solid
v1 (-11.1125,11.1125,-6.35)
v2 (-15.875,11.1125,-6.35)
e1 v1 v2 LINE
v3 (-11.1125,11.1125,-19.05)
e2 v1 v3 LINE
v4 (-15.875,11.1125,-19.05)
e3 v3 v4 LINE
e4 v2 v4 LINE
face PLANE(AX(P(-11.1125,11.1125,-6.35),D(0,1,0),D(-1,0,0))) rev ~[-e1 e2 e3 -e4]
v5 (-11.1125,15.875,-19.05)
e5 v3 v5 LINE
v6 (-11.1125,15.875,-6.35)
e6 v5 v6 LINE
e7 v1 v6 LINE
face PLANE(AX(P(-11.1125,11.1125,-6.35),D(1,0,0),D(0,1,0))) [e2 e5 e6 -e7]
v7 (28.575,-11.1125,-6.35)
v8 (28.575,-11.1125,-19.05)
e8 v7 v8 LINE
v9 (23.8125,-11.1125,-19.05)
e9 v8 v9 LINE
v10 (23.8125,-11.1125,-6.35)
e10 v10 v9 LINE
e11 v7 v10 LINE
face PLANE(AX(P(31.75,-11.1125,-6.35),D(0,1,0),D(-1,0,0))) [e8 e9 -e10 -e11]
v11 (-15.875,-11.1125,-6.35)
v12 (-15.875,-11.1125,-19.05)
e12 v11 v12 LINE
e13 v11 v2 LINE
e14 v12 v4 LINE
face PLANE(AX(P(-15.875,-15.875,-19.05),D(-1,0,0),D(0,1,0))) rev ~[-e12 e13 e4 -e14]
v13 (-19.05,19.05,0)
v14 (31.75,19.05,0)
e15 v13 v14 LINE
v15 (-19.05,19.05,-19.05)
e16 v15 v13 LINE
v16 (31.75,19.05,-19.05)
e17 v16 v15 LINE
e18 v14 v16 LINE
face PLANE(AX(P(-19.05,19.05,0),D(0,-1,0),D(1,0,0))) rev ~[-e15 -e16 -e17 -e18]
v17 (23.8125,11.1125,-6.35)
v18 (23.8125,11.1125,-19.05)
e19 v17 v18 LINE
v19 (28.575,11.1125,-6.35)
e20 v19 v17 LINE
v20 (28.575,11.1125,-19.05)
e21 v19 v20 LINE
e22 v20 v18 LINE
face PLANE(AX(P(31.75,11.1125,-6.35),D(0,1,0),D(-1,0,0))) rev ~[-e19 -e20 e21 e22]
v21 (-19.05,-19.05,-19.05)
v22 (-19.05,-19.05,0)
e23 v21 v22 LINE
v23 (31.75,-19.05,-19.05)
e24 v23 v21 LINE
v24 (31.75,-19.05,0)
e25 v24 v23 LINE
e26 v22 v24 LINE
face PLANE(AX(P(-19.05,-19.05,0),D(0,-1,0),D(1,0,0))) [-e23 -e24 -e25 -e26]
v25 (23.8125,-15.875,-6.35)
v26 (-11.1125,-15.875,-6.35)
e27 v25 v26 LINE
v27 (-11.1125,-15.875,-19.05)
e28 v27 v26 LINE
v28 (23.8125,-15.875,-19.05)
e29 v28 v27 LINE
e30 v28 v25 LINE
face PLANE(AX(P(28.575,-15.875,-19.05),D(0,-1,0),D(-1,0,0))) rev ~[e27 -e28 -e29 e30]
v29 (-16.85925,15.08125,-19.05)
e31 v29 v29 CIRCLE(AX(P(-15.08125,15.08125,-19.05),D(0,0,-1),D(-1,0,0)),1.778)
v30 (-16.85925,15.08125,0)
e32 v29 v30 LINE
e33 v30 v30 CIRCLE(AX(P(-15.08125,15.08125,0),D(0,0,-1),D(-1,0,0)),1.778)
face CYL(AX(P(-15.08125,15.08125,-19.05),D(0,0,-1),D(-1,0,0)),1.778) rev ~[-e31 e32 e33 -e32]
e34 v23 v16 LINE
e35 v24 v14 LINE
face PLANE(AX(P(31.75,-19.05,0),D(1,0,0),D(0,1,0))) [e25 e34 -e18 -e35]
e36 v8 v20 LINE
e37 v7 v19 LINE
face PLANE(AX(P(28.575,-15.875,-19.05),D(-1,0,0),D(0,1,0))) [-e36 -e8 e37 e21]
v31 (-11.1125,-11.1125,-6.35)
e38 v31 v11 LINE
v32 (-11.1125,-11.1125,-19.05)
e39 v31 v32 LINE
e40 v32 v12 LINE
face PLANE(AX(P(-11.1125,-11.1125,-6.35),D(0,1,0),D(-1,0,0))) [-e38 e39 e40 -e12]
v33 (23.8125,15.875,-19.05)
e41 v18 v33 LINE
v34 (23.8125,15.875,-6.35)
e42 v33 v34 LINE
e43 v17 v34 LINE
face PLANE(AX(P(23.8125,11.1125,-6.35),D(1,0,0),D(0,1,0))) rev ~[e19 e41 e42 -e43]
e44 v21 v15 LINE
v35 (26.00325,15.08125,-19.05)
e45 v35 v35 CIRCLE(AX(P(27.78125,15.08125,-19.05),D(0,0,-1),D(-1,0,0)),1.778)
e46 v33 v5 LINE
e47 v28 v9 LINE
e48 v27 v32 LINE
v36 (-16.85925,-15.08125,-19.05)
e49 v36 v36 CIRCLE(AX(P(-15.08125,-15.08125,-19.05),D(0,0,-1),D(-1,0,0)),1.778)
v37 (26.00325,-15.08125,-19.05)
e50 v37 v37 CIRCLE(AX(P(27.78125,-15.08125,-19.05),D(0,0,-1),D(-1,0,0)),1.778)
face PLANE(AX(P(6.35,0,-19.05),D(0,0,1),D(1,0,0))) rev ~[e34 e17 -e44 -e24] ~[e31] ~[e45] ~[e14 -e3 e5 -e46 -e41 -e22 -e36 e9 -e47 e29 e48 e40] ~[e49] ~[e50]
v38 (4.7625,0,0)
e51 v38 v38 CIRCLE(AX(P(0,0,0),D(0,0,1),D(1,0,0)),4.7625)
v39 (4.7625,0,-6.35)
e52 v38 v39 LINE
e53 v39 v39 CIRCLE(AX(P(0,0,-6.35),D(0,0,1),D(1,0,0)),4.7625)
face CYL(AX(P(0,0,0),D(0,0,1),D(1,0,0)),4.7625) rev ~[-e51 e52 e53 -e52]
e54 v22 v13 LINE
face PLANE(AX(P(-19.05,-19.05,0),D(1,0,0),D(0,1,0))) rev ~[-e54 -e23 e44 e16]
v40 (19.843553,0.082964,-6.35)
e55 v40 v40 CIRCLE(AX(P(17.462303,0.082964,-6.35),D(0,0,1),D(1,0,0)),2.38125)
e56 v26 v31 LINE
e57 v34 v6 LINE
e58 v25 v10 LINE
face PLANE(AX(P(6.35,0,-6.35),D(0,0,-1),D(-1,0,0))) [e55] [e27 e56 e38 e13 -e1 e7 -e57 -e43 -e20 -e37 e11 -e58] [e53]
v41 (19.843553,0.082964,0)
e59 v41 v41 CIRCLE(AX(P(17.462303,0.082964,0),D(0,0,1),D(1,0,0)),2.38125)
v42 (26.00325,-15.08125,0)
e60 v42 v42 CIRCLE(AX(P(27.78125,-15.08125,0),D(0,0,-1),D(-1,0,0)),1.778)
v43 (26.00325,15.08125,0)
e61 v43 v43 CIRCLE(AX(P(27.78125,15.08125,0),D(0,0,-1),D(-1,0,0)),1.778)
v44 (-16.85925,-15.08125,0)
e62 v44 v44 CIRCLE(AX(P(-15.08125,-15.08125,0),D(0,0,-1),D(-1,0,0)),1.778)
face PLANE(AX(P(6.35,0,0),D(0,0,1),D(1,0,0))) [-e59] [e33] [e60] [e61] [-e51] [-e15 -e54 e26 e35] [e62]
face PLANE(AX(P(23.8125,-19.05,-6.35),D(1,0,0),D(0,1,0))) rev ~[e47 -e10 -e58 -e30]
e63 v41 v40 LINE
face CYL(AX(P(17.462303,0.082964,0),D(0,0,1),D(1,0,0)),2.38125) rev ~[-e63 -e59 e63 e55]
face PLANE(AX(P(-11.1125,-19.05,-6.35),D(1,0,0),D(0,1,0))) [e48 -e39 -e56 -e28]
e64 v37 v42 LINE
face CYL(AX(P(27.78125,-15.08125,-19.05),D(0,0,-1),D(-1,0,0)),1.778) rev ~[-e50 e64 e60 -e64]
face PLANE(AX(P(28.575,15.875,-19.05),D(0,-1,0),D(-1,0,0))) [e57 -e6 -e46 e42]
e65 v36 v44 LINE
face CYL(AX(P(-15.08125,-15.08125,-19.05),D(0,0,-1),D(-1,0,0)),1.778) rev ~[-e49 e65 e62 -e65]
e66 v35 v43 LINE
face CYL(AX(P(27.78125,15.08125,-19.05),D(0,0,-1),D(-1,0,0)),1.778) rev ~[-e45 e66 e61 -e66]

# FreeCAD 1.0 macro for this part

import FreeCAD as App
import Part
import Sketcher
from FreeCAD import Vector
Q = App.Units.Quantity

doc = App.newDocument("Part")
body = doc.addObject("PartDesign::Body", "Body")

# Sketch on XY plane
sketch1 = body.newObject("Sketcher::SketchObject", "Sketch")
sketch1.AttachmentSupport = (doc.getObject("XY_Plane"), [""])
sketch1.MapMode = "FlatFace"
sketch1.addGeometry(Part.LineSegment(Vector(-19.05, 19.05, 0), Vector(-19.05, -19.05, 0)), False)
sketch1.addGeometry(Part.LineSegment(Vector(-19.05, -19.05, 0), Vector(31.75, -19.05, 0)), False)
sketch1.addGeometry(Part.LineSegment(Vector(31.75, -19.05, 0), Vector(31.75, 19.05, 0)), False)
sketch1.addGeometry(Part.LineSegment(Vector(31.75, 19.05, 0), Vector(-19.05, 19.05, 0)), False)
sketch1.addConstraint(Sketcher.Constraint("Coincident", 0, 2, 1, 1))
sketch1.addConstraint(Sketcher.Constraint("Coincident", 1, 2, 2, 1))
sketch1.addConstraint(Sketcher.Constraint("Coincident", 2, 2, 3, 1))
sketch1.addConstraint(Sketcher.Constraint("Coincident", 3, 2, 0, 1))
sketch1.addConstraint(Sketcher.Constraint("Vertical", 0))
sketch1.addConstraint(Sketcher.Constraint("Horizontal", 1))
sketch1.addConstraint(Sketcher.Constraint("Vertical", 2))
sketch1.addConstraint(Sketcher.Constraint("Horizontal", 3))
sketch1.addConstraint(Sketcher.Constraint("DistanceX", 1, 1, 1, 2, Q("2 in")))
sketch1.addConstraint(Sketcher.Constraint("DistanceY", 0, 2, 0, 1, Q("1.5 in")))
sketch1.addConstraint(Sketcher.Constraint("DistanceX", 0, 2, -1, 1, Q("0.75 in")))
sketch1.addConstraint(Sketcher.Constraint("DistanceY", 0, 2, -1, 1, Q("0.75 in")))
pad1 = body.newObject("PartDesign::Pad", "Pad")
pad1.Profile = sketch1
pad1.Length = Q("0.75 in")
pad1.Reversed = True

# Sketch on XY plane
sketch2 = body.newObject("Sketcher::SketchObject", "Sketch001")
sketch2.AttachmentSupport = (doc.getObject("XY_Plane"), [""])
sketch2.MapMode = "FlatFace"
sketch2.AttachmentOffset = App.Placement(Vector(0, 0, -0.75 * 25.4), App.Rotation())
sketch2.addGeometry(Part.LineSegment(Vector(28.575, 15.875, 0), Vector(28.575, -15.875, 0)), False)
sketch2.addGeometry(Part.LineSegment(Vector(28.575, -15.875, 0), Vector(-15.875, -15.875, 0)), False)
sketch2.addGeometry(Part.LineSegment(Vector(-15.875, -15.875, 0), Vector(-15.875, 15.875, 0)), False)
sketch2.addGeometry(Part.LineSegment(Vector(-15.875, 15.875, 0), Vector(28.575, 15.875, 0)), False)
sketch2.addConstraint(Sketcher.Constraint("Coincident", 0, 2, 1, 1))
sketch2.addConstraint(Sketcher.Constraint("Coincident", 1, 2, 2, 1))
sketch2.addConstraint(Sketcher.Constraint("Coincident", 2, 2, 3, 1))
sketch2.addConstraint(Sketcher.Constraint("Coincident", 3, 2, 0, 1))
sketch2.addConstraint(Sketcher.Constraint("Vertical", 0))
sketch2.addConstraint(Sketcher.Constraint("Horizontal", 1))
sketch2.addConstraint(Sketcher.Constraint("Vertical", 2))
sketch2.addConstraint(Sketcher.Constraint("Horizontal", 3))
sketch2.addConstraint(Sketcher.Constraint("DistanceX", 1, 2, 1, 1, Q("1.75 in")))
sketch2.addConstraint(Sketcher.Constraint("DistanceY", 0, 2, 0, 1, Q("1.25 in")))
sketch2.addConstraint(Sketcher.Constraint("DistanceX", -1, 1, 0, 2, Q("1.125 in")))
sketch2.addConstraint(Sketcher.Constraint("DistanceY", 0, 2, -1, 1, Q("0.625 in")))
pocket1 = body.newObject("PartDesign::Pocket", "Pocket")
pocket1.Profile = sketch2
pocket1.Length = Q("0.5 in")
pocket1.Reversed = True

# Sketch on XY plane
sketch3 = body.newObject("Sketcher::SketchObject", "Sketch002")
sketch3.AttachmentSupport = (doc.getObject("XY_Plane"), [""])
sketch3.MapMode = "FlatFace"
sketch3.addGeometry(Part.Circle(Vector(0, 0, 0), Vector(0, 0, 1), 4.7625), False)
sketch3.addGeometry(Part.Circle(Vector(17.462303, 0.082964, 0), Vector(0, 0, 1), 2.38125), False)
sketch3.addConstraint(Sketcher.Constraint("Coincident", 0, 3, -1, 1))
sketch3.addConstraint(Sketcher.Constraint("Diameter", 0, Q("0.375 in")))
sketch3.addConstraint(Sketcher.Constraint("Diameter", 1, Q("0.1875 in")))
sketch3.addConstraint(Sketcher.Constraint("DistanceX", -1, 1, 1, 3, Q("17.462303 mm")))
sketch3.addConstraint(Sketcher.Constraint("DistanceY", -1, 1, 1, 3, Q("0.082964 mm")))
pocket2 = body.newObject("PartDesign::Pocket", "Pocket001")
pocket2.Profile = sketch3
pocket2.Type = "ThroughAll"

# Sketch on XY plane
sketch4 = body.newObject("Sketcher::SketchObject", "Sketch003")
sketch4.AttachmentSupport = (doc.getObject("XY_Plane"), [""])
sketch4.MapMode = "FlatFace"
sketch4.AttachmentOffset = App.Placement(Vector(0, 0, -0.25 * 25.4), App.Rotation())
sketch4.addGeometry(Part.LineSegment(Vector(31.75, 19.05, 0), Vector(31.75, 11.1125, 0)), False)
sketch4.addGeometry(Part.LineSegment(Vector(31.75, 11.1125, 0), Vector(23.8125, 11.1125, 0)), False)
sketch4.addGeometry(Part.LineSegment(Vector(23.8125, 11.1125, 0), Vector(23.8125, 19.05, 0)), False)
sketch4.addGeometry(Part.LineSegment(Vector(23.8125, 19.05, 0), Vector(31.75, 19.05, 0)), False)
sketch4.addGeometry(Part.LineSegment(Vector(-11.1125, 19.05, 0), Vector(-11.1125, 11.1125, 0)), False)
sketch4.addGeometry(Part.LineSegment(Vector(-11.1125, 11.1125, 0), Vector(-19.05, 11.1125, 0)), False)
sketch4.addGeometry(Part.LineSegment(Vector(-19.05, 11.1125, 0), Vector(-19.05, 19.05, 0)), False)
sketch4.addGeometry(Part.LineSegment(Vector(-19.05, 19.05, 0), Vector(-11.1125, 19.05, 0)), False)
sketch4.addGeometry(Part.LineSegment(Vector(-11.1125, -11.1125, 0), Vector(-11.1125, -19.05, 0)), False)
sketch4.addGeometry(Part.LineSegment(Vector(-11.1125, -19.05, 0), Vector(-19.05, -19.05, 0)), False)
sketch4.addGeometry(Part.LineSegment(Vector(-19.05, -19.05, 0), Vector(-19.05, -11.1125, 0)), False)
sketch4.addGeometry(Part.LineSegment(Vector(-19.05, -11.1125, 0), Vector(-11.1125, -11.1125, 0)), False)
sketch4.addGeometry(Part.LineSegment(Vector(31.75, -11.1125, 0), Vector(31.75, -19.05, 0)), False)
sketch4.addGeometry(Part.LineSegment(Vector(31.75, -19.05, 0), Vector(23.8125, -19.05, 0)), False)
sketch4.addGeometry(Part.LineSegment(Vector(23.8125, -19.05, 0), Vector(23.8125, -11.1125, 0)), False)
sketch4.addGeometry(Part.LineSegment(Vector(23.8125, -11.1125, 0), Vector(31.75, -11.1125, 0)), False)
sketch4.addConstraint(Sketcher.Constraint("Coincident", 0, 2, 1, 1))
sketch4.addConstraint(Sketcher.Constraint("Coincident", 1, 2, 2, 1))
sketch4.addConstraint(Sketcher.Constraint("Coincident", 2, 2, 3, 1))
sketch4.addConstraint(Sketcher.Constraint("Coincident", 3, 2, 0, 1))
sketch4.addConstraint(Sketcher.Constraint("Coincident", 4, 2, 5, 1))
sketch4.addConstraint(Sketcher.Constraint("Coincident", 5, 2, 6, 1))
sketch4.addConstraint(Sketcher.Constraint("Coincident", 6, 2, 7, 1))
sketch4.addConstraint(Sketcher.Constraint("Coincident", 7, 2, 4, 1))
sketch4.addConstraint(Sketcher.Constraint("Coincident", 8, 2, 9, 1))
sketch4.addConstraint(Sketcher.Constraint("Coincident", 9, 2, 10, 1))
sketch4.addConstraint(Sketcher.Constraint("Coincident", 10, 2, 11, 1))
sketch4.addConstraint(Sketcher.Constraint("Coincident", 11, 2, 8, 1))
sketch4.addConstraint(Sketcher.Constraint("Coincident", 12, 2, 13, 1))
sketch4.addConstraint(Sketcher.Constraint("Coincident", 13, 2, 14, 1))
sketch4.addConstraint(Sketcher.Constraint("Coincident", 14, 2, 15, 1))
sketch4.addConstraint(Sketcher.Constraint("Coincident", 15, 2, 12, 1))
sketch4.addConstraint(Sketcher.Constraint("Vertical", 0))
sketch4.addConstraint(Sketcher.Constraint("Horizontal", 1))
sketch4.addConstraint(Sketcher.Constraint("Vertical", 2))
sketch4.addConstraint(Sketcher.Constraint("Horizontal", 3))
sketch4.addConstraint(Sketcher.Constraint("Vertical", 4))
sketch4.addConstraint(Sketcher.Constraint("Horizontal", 5))
sketch4.addConstraint(Sketcher.Constraint("Vertical", 6))
sketch4.addConstraint(Sketcher.Constraint("Horizontal", 7))
sketch4.addConstraint(Sketcher.Constraint("Vertical", 8))
sketch4.addConstraint(Sketcher.Constraint("Horizontal", 9))
sketch4.addConstraint(Sketcher.Constraint("Vertical", 10))
sketch4.addConstraint(Sketcher.Constraint("Horizontal", 11))
sketch4.addConstraint(Sketcher.Constraint("Vertical", 12))
sketch4.addConstraint(Sketcher.Constraint("Horizontal", 13))
sketch4.addConstraint(Sketcher.Constraint("Vertical", 14))
sketch4.addConstraint(Sketcher.Constraint("Horizontal", 15))
sketch4.addConstraint(Sketcher.Constraint("Symmetric", 7, 2, 8, 2, -1))
sketch4.addConstraint(Sketcher.Constraint("Symmetric", 5, 2, 10, 2, -1))
sketch4.addConstraint(Sketcher.Constraint("Symmetric", 3, 2, 12, 2, -1))
sketch4.addConstraint(Sketcher.Constraint("Symmetric", 1, 2, 14, 2, -1))
sketch4.addConstraint(Sketcher.Constraint("Horizontal", 1, 2, 4, 2))
sketch4.addConstraint(Sketcher.Constraint("Horizontal", 3, 2, 6, 2))
sketch4.addConstraint(Sketcher.Constraint("Equal", 3, 5))
sketch4.addConstraint(Sketcher.Constraint("Equal", 15, 0))
sketch4.addConstraint(Sketcher.Constraint("DistanceX", 5, 2, 0, 2, Q("2 in")))
sketch4.addConstraint(Sketcher.Constraint("DistanceY", 8, 2, 7, 2, Q("1.5 in")))
sketch4.addConstraint(Sketcher.Constraint("DistanceX", 1, 2, 1, 1, Q("0.3125 in")))
sketch4.addConstraint(Sketcher.Constraint("DistanceX", -1, 1, 0, 2, Q("1.25 in")))
pad2 = body.newObject("PartDesign::Pad", "Pad001")
pad2.Profile = sketch4
pad2.Length = Q("0.5 in")
pad2.Reversed = True

# Sketch on XY plane
sketch5 = body.newObject("Sketcher::SketchObject", "Sketch004")
sketch5.AttachmentSupport = (doc.getObject("XY_Plane"), [""])
sketch5.MapMode = "FlatFace"
sketch5.AttachmentOffset = App.Placement(Vector(0, 0, -0.75 * 25.4), App.Rotation())
sketch5.addGeometry(Part.Circle(Vector(27.78125, 15.08125, 0), Vector(0, 0, 1), 1.778), False)
sketch5.addGeometry(Part.Circle(Vector(-15.08125, 15.08125, 0), Vector(0, 0, 1), 1.778), False)
sketch5.addGeometry(Part.Circle(Vector(-15.08125, -15.08125, 0), Vector(0, 0, 1), 1.778), False)
sketch5.addGeometry(Part.Circle(Vector(27.78125, -15.08125, 0), Vector(0, 0, 1), 1.778), False)
sketch5.addConstraint(Sketcher.Constraint("Equal", 0, 1))
sketch5.addConstraint(Sketcher.Constraint("Equal", 1, 2))
sketch5.addConstraint(Sketcher.Constraint("Equal", 2, 3))
sketch5.addConstraint(Sketcher.Constraint("Symmetric", 1, 3, 2, 3, -1))
sketch5.addConstraint(Sketcher.Constraint("Symmetric", 0, 3, 3, 3, -1))
sketch5.addConstraint(Sketcher.Constraint("Horizontal", 0, 3, 1, 3))
sketch5.addConstraint(Sketcher.Constraint("Diameter", 0, Q("0.14 in")))
sketch5.addConstraint(Sketcher.Constraint("DistanceX", -1, 1, 0, 3, Q("1.09375 in")))
sketch5.addConstraint(Sketcher.Constraint("DistanceY", -1, 1, 0, 3, Q("0.59375 in")))
sketch5.addConstraint(Sketcher.Constraint("DistanceX", 1, 3, -1, 1, Q("0.59375 in")))
pocket3 = body.newObject("PartDesign::Pocket", "Pocket002")
pocket3.Profile = sketch5
pocket3.Type = "ThroughAll"
pocket3.Reversed = True

doc.recompute()
